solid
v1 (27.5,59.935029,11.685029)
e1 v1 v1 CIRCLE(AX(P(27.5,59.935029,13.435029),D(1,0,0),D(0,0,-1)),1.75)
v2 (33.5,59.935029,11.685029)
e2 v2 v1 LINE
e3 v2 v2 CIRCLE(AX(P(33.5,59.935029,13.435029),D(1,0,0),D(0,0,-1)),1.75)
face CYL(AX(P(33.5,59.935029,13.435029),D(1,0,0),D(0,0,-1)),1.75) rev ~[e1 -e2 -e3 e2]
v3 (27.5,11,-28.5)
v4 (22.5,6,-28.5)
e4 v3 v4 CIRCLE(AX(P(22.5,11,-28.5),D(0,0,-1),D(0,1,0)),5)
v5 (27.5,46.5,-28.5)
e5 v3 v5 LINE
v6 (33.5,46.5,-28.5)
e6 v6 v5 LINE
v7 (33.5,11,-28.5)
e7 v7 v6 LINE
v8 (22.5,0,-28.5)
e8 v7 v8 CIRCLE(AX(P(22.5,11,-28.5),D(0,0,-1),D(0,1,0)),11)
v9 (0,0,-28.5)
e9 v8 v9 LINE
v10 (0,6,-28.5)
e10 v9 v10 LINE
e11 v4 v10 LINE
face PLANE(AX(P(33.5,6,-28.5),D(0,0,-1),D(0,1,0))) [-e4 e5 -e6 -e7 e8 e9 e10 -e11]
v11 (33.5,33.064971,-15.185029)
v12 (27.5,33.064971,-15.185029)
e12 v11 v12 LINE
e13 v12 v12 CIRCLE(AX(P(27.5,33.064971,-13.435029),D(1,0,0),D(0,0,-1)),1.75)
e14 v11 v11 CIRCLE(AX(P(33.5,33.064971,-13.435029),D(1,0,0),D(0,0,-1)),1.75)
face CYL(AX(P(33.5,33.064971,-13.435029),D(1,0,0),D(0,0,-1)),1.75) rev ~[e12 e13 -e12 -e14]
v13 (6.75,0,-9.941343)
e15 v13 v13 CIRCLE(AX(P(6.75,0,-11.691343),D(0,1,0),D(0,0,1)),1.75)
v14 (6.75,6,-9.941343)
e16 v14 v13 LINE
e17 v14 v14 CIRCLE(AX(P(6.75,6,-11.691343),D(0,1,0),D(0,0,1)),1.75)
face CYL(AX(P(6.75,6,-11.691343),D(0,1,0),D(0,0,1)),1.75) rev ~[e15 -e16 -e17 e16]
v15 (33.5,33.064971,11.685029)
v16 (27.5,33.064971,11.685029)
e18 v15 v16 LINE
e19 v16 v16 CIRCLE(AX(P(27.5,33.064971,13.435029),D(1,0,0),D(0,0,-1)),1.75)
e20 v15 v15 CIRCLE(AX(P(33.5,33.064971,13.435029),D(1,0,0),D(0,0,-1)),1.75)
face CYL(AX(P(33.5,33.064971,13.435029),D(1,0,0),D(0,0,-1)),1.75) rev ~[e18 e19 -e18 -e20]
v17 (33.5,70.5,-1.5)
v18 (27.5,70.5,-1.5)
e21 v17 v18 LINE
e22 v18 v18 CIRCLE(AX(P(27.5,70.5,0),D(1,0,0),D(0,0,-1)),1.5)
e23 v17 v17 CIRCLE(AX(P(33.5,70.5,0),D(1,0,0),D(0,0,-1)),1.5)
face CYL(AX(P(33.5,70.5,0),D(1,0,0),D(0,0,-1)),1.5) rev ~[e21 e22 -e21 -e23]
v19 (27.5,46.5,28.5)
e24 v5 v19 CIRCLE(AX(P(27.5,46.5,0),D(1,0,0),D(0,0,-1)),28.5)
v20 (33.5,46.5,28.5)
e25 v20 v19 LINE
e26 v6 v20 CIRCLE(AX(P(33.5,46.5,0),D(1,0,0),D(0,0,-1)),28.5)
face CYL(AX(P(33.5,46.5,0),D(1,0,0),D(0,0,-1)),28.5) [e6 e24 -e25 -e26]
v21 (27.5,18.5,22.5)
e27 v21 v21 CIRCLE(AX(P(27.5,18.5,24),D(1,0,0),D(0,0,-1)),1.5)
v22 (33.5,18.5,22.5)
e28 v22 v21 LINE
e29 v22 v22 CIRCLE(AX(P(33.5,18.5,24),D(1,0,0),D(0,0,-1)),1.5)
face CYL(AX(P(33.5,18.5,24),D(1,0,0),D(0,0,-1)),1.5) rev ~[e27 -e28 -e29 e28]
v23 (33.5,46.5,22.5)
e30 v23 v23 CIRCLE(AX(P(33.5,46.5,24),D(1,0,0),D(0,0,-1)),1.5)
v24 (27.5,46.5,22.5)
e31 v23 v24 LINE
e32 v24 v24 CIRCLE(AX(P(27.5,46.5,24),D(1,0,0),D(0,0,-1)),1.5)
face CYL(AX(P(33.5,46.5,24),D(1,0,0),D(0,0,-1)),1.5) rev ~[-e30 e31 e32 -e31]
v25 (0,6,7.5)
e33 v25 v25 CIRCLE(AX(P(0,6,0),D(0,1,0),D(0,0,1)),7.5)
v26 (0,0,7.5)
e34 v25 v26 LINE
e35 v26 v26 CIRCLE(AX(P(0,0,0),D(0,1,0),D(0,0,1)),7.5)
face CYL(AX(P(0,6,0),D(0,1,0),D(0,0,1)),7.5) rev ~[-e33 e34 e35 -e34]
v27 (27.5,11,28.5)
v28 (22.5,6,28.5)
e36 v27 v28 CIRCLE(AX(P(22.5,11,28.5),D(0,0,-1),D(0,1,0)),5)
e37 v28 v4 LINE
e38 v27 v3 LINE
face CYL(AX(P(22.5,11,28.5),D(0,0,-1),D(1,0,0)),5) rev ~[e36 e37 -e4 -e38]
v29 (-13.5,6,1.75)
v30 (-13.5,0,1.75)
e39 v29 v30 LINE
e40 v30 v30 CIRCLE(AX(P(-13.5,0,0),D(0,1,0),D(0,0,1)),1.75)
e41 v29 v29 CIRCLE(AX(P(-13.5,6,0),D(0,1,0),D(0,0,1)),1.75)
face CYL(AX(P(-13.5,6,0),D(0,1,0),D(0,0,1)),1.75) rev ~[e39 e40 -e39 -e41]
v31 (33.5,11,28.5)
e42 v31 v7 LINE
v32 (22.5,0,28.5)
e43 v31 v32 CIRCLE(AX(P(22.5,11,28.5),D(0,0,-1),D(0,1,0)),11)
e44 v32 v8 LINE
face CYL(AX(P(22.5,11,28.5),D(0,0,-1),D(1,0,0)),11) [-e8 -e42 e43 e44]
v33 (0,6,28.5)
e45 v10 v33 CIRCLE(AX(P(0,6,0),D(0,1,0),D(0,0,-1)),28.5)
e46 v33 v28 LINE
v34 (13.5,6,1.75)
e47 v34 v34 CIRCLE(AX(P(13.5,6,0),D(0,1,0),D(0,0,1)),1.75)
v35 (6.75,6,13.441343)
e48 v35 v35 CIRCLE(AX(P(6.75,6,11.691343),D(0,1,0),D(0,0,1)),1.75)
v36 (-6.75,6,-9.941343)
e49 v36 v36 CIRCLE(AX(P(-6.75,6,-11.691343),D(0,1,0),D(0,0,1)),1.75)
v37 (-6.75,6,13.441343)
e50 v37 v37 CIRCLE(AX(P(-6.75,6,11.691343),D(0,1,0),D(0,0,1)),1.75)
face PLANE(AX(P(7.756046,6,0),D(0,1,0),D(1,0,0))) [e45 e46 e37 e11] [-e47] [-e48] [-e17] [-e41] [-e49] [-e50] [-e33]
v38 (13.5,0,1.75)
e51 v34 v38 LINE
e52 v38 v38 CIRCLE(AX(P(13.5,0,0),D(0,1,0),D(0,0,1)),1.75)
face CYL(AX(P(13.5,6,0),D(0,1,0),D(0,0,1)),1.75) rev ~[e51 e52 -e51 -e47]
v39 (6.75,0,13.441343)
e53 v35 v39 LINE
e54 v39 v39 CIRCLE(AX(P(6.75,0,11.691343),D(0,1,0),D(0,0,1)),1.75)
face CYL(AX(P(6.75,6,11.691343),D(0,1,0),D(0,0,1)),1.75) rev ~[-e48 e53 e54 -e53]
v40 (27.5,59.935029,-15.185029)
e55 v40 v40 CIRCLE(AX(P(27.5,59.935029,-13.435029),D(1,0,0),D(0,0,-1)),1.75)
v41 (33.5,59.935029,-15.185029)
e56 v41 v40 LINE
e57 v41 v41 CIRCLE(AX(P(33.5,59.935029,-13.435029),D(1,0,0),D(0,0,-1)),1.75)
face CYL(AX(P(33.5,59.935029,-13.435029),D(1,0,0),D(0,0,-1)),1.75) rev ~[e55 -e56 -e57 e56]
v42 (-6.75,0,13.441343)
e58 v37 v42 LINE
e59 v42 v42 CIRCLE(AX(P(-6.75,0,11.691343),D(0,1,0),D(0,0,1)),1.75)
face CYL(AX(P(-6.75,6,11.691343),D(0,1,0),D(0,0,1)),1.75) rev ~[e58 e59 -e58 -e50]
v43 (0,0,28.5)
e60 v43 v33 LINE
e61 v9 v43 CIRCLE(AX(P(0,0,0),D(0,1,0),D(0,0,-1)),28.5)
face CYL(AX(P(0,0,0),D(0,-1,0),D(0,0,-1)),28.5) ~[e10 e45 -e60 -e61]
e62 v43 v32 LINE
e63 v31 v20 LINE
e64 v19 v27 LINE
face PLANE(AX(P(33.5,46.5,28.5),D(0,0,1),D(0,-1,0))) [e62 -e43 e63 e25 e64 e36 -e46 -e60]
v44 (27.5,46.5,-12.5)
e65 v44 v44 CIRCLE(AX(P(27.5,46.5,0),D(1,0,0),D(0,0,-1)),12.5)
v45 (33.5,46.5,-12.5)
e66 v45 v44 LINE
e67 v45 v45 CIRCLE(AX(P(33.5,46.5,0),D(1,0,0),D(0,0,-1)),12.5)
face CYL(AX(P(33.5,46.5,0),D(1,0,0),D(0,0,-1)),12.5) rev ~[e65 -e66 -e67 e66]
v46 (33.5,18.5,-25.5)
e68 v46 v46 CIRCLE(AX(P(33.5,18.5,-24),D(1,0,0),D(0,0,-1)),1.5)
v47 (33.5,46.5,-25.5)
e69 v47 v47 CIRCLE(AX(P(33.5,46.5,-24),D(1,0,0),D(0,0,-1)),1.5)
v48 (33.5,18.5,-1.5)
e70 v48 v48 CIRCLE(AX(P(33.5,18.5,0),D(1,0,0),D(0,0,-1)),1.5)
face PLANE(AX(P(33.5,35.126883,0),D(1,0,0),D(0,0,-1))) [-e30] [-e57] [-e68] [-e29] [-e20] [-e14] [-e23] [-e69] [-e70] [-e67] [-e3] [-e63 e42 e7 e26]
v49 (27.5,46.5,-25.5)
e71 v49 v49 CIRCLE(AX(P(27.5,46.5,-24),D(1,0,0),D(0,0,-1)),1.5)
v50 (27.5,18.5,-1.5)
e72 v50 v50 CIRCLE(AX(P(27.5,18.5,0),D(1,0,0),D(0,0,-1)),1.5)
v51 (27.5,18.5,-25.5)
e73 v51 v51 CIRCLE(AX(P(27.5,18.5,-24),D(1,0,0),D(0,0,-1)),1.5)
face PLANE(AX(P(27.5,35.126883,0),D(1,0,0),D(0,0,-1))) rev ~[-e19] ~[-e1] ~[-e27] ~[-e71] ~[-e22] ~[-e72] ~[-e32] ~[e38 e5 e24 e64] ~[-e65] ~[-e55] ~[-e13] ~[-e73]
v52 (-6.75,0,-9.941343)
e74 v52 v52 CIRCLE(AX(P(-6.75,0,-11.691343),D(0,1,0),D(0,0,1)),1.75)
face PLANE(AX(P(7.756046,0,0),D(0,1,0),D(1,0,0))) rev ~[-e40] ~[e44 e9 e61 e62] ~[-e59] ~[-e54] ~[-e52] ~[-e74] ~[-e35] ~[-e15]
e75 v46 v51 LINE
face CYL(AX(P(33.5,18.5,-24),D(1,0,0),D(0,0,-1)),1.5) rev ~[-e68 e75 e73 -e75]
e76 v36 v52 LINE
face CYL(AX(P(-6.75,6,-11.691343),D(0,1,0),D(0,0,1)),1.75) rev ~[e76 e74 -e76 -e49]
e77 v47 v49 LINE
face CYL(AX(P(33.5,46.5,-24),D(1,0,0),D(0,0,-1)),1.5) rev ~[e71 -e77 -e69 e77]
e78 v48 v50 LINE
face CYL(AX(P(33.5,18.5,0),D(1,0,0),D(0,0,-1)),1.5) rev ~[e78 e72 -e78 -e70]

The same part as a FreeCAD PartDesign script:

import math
import FreeCAD as App
import Part
import Sketcher
from FreeCAD import Vector
Q = App.Units.Quantity


def edges_at(feature, points):
    """Names of the edges that pass closest to the given points."""
    edges = feature.Shape.Edges
    near = lambda p: min(range(len(edges)), key=lambda i: edges[i].distToShape(Part.Vertex(*p))[0])
    return sorted({f"Edge{near(p) + 1}" for p in points})

doc = App.newDocument("Part")
body = doc.addObject("PartDesign::Body", "Body")

# Sketch on XZ plane
sketch1 = body.newObject("Sketcher::SketchObject", "Sketch")
sketch1.AttachmentSupport = (doc.getObject("XZ_Plane"), [""])
sketch1.MapMode = "FlatFace"
sketch1.addGeometry([
    Part.ArcOfCircle(Part.Circle(Vector(0, 0, 0), Vector(0, 0, 1), 28.5), math.radians(90), math.radians(270)),
    Part.LineSegment(Vector(0, 28.5, 0), Vector(33.5, 28.5, 0)),
    Part.LineSegment(Vector(33.5, 28.5, 0), Vector(33.5, -28.5, 0)),
    Part.LineSegment(Vector(33.5, -28.5, 0), Vector(0, -28.5, 0)),
], False)
sketch1.addConstraint([
    Sketcher.Constraint("Tangent", 0, 1, 1, 1),
    Sketcher.Constraint("Coincident", 1, 2, 2, 1),
    Sketcher.Constraint("Coincident", 2, 2, 3, 1),
    Sketcher.Constraint("Tangent", 3, 2, 0, 2),
    Sketcher.Constraint("Horizontal", 1),
    Sketcher.Constraint("Vertical", 2),
    Sketcher.Constraint("Horizontal", 3),
    Sketcher.Constraint("Coincident", 0, 3, -1, 1),
    Sketcher.Constraint("Radius", 0, Q("28.5 mm")),
    Sketcher.Constraint("DistanceX", 1, 1, 1, 2, Q("33.5 mm")),
])
pad1 = body.newObject("PartDesign::Pad", "Pad")
pad1.Profile = sketch1
pad1.Length = 6
pad1.Reversed = True

# Sketch on YZ plane
sketch2 = body.newObject("Sketcher::SketchObject", "Sketch001")
sketch2.AttachmentSupport = (doc.getObject("YZ_Plane"), [""])
sketch2.MapMode = "FlatFace"
sketch2.AttachmentOffset = App.Placement(Vector(0, 0, 33.5), App.Rotation())
sketch2.addGeometry([
    Part.LineSegment(Vector(46.5, 28.5, 0), Vector(6, 28.5, 0)),
    Part.LineSegment(Vector(6, 28.5, 0), Vector(6, -28.5, 0)),
    Part.LineSegment(Vector(6, -28.5, 0), Vector(46.5, -28.5, 0)),
    Part.ArcOfCircle(Part.Circle(Vector(46.5, 0, 0), Vector(0, 0, 1), 28.5), math.radians(-90), math.radians(90)),
], False)
sketch2.addConstraint([
    Sketcher.Constraint("Coincident", 0, 2, 1, 1),
    Sketcher.Constraint("Coincident", 1, 2, 2, 1),
    Sketcher.Constraint("Tangent", 2, 2, 3, 1),
    Sketcher.Constraint("Tangent", 3, 2, 0, 1),
    Sketcher.Constraint("Horizontal", 0),
    Sketcher.Constraint("Vertical", 1),
    Sketcher.Constraint("Horizontal", 2),
    Sketcher.Constraint("PointOnObject", 3, 3, -1),
    Sketcher.Constraint("Radius", 3, Q("28.5 mm")),
    Sketcher.Constraint("DistanceX", 0, 2, 0, 1, Q("40.5 mm")),
    Sketcher.Constraint("DistanceX", -1, 1, 0, 2, Q("6 mm")),
])
pad2 = body.newObject("PartDesign::Pad", "Pad001")
pad2.Profile = sketch2
pad2.Length = 6
pad2.Reversed = True

# Sketch on XZ plane
sketch3 = body.newObject("Sketcher::SketchObject", "Sketch002")
sketch3.AttachmentSupport = (doc.getObject("XZ_Plane"), [""])
sketch3.MapMode = "FlatFace"
sketch3.AttachmentOffset = App.Placement(Vector(0, 0, -6), App.Rotation())
sketch3.addGeometry([
    Part.Circle(Vector(-13.5, 0, 0), Vector(0, 0, 1), 1.75),  # 0
    Part.Circle(Vector(-6.75, -11.691343, 0), Vector(0, 0, 1), 1.75),  # 1
    Part.Circle(Vector(6.75, -11.691343, 0), Vector(0, 0, 1), 1.75),  # 2
    Part.Circle(Vector(13.5, 0, 0), Vector(0, 0, 1), 1.75),  # 3
    Part.Circle(Vector(6.75, 11.691343, 0), Vector(0, 0, 1), 1.75),  # 4
    Part.Circle(Vector(-6.75, 11.691343, 0), Vector(0, 0, 1), 1.75),  # 5
], False)
sketch3.addConstraint([
    Sketcher.Constraint("Equal", 0, 1),
    Sketcher.Constraint("Equal", 1, 2),
    Sketcher.Constraint("Equal", 2, 3),
    Sketcher.Constraint("Equal", 3, 4),
    Sketcher.Constraint("Equal", 4, 5),
    Sketcher.Constraint("Symmetric", 0, 3, 3, 3, -1, 1),
    Sketcher.Constraint("Symmetric", 1, 3, 4, 3, -1, 1),
    Sketcher.Constraint("Symmetric", 2, 3, 5, 3, -1, 1),
    Sketcher.Constraint("Symmetric", 1, 3, 2, 3, -2),
    Sketcher.Constraint("PointOnObject", 0, 3, -1),
    Sketcher.Constraint("Diameter", 0, Q("3.5 mm")),
    Sketcher.Constraint("DistanceX", 0, 3, 3, 3, Q("27 mm")),
    Sketcher.Constraint("DistanceX", 1, 3, 2, 3, Q("13.5 mm")),
    Sketcher.Constraint("DistanceY", 1, 3, -1, 1, Q("11.691343 mm")),
])
pocket1 = body.newObject("PartDesign::Pocket", "Pocket")
pocket1.Profile = sketch3
pocket1.Length = 16
pocket1.Reversed = True

# Sketch on YZ plane
sketch4 = body.newObject("Sketcher::SketchObject", "Sketch003")
sketch4.AttachmentSupport = (doc.getObject("YZ_Plane"), [""])
sketch4.MapMode = "FlatFace"
sketch4.AttachmentOffset = App.Placement(Vector(0, 0, 33.5), App.Rotation())
sketch4.addGeometry([
    Part.Circle(Vector(59.935029, 13.435029, 0), Vector(0, 0, 1), 1.75),
    Part.Circle(Vector(59.935029, -13.435029, 0), Vector(0, 0, 1), 1.75),
    Part.Circle(Vector(33.064971, -13.435029, 0), Vector(0, 0, 1), 1.75),
    Part.Circle(Vector(33.064971, 13.435029, 0), Vector(0, 0, 1), 1.75),
], False)
sketch4.addConstraint([
    Sketcher.Constraint("Equal", 0, 1),
    Sketcher.Constraint("Equal", 1, 2),
    Sketcher.Constraint("Equal", 2, 3),
    Sketcher.Constraint("Symmetric", 0, 3, 1, 3, -1),
    Sketcher.Constraint("Symmetric", 2, 3, 3, 3, -1),
    Sketcher.Constraint("Horizontal", 1, 3, 2, 3),
    Sketcher.Constraint("Diameter", 0, Q("3.5 mm")),
    Sketcher.Constraint("DistanceX", -1, 1, 0, 3, Q("59.935029 mm")),
    Sketcher.Constraint("DistanceY", -1, 1, 0, 3, Q("13.435029 mm")),
    Sketcher.Constraint("DistanceX", -1, 1, 2, 3, Q("33.064971 mm")),
])
pocket2 = body.newObject("PartDesign::Pocket", "Pocket001")
pocket2.Profile = sketch4
pocket2.Length = 16
doc.recompute()

fillet = body.newObject("PartDesign::Fillet", "Fillet")
fillet.Base = (pocket2, edges_at(pocket2, [(27.5, 6, 0)]))
fillet.Radius = 5
doc.recompute()

fillet2 = body.newObject("PartDesign::Fillet", "Fillet001")
fillet2.Base = (fillet, edges_at(fillet, [(33.5, 0, 0)]))
fillet2.Radius = 11

# Sketch on YZ plane
sketch5 = body.newObject("Sketcher::SketchObject", "Sketch004")
sketch5.AttachmentSupport = (doc.getObject("YZ_Plane"), [""])
sketch5.MapMode = "FlatFace"
sketch5.AttachmentOffset = App.Placement(Vector(0, 0, 33.5), App.Rotation())
sketch5.addGeometry([
    Part.Circle(Vector(70.5, 0, 0), Vector(0, 0, 1), 1.5),  # 0
    Part.Circle(Vector(46.5, 24, 0), Vector(0, 0, 1), 1.5),  # 1
    Part.Circle(Vector(46.5, -24, 0), Vector(0, 0, 1), 1.5),  # 2
    Part.Circle(Vector(18.5, 24, 0), Vector(0, 0, 1), 1.5),  # 3
    Part.Circle(Vector(18.5, -24, 0), Vector(0, 0, 1), 1.5),  # 4
    Part.Circle(Vector(18.5, 0, 0), Vector(0, 0, 1), 1.5),  # 5
    Part.Circle(Vector(46.5, 0, 0), Vector(0, 0, 1), 12.5),  # 6
], False)
sketch5.addConstraint([
    Sketcher.Constraint("Equal", 0, 1),
    Sketcher.Constraint("Equal", 1, 2),
    Sketcher.Constraint("Equal", 2, 3),
    Sketcher.Constraint("Equal", 3, 4),
    Sketcher.Constraint("Equal", 4, 5),
    Sketcher.Constraint("Symmetric", 1, 3, 2, 3, -1),
    Sketcher.Constraint("Symmetric", 3, 3, 4, 3, -1),
    Sketcher.Constraint("PointOnObject", 0, 3, -1),
    Sketcher.Constraint("PointOnObject", 5, 3, -1),
    Sketcher.Constraint("PointOnObject", 6, 3, -1),
    Sketcher.Constraint("Horizontal", 1, 3, 3, 3),
    Sketcher.Constraint("Vertical", 4, 3, 5, 3),
    Sketcher.Constraint("Vertical", 2, 3, 6, 3),
    Sketcher.Constraint("Diameter", 0, Q("3 mm")),
    Sketcher.Constraint("Diameter", 6, Q("25 mm")),
    Sketcher.Constraint("DistanceY", -1, 1, 1, 3, Q("24 mm")),
    Sketcher.Constraint("DistanceX", 1, 3, 0, 3, Q("24 mm")),
    Sketcher.Constraint("DistanceX", 3, 3, 1, 3, Q("28 mm")),
    Sketcher.Constraint("DistanceX", -1, 1, 0, 3, Q("70.5 mm")),
])
pocket3 = body.newObject("PartDesign::Pocket", "Pocket002")
pocket3.Profile = sketch5
pocket3.Length = 10

# Sketch on XZ plane
sketch6 = body.newObject("Sketcher::SketchObject", "Sketch005")
sketch6.AttachmentSupport = (doc.getObject("XZ_Plane"), [""])
sketch6.MapMode = "FlatFace"
sketch6.AttachmentOffset = App.Placement(Vector(0, 0, -6), App.Rotation())
sketch6.addGeometry(Part.Circle(Vector(0, 0, 0), Vector(0, 0, 1), 7.5), False)
sketch6.addConstraint([
    Sketcher.Constraint("Coincident", 0, 3, -1, 1),
    Sketcher.Constraint("Diameter", 0, Q("15 mm")),
])
pocket4 = body.newObject("PartDesign::Pocket", "Pocket003")
pocket4.Profile = sketch6
pocket4.Length = 10
pocket4.Reversed = True

doc.recompute()
